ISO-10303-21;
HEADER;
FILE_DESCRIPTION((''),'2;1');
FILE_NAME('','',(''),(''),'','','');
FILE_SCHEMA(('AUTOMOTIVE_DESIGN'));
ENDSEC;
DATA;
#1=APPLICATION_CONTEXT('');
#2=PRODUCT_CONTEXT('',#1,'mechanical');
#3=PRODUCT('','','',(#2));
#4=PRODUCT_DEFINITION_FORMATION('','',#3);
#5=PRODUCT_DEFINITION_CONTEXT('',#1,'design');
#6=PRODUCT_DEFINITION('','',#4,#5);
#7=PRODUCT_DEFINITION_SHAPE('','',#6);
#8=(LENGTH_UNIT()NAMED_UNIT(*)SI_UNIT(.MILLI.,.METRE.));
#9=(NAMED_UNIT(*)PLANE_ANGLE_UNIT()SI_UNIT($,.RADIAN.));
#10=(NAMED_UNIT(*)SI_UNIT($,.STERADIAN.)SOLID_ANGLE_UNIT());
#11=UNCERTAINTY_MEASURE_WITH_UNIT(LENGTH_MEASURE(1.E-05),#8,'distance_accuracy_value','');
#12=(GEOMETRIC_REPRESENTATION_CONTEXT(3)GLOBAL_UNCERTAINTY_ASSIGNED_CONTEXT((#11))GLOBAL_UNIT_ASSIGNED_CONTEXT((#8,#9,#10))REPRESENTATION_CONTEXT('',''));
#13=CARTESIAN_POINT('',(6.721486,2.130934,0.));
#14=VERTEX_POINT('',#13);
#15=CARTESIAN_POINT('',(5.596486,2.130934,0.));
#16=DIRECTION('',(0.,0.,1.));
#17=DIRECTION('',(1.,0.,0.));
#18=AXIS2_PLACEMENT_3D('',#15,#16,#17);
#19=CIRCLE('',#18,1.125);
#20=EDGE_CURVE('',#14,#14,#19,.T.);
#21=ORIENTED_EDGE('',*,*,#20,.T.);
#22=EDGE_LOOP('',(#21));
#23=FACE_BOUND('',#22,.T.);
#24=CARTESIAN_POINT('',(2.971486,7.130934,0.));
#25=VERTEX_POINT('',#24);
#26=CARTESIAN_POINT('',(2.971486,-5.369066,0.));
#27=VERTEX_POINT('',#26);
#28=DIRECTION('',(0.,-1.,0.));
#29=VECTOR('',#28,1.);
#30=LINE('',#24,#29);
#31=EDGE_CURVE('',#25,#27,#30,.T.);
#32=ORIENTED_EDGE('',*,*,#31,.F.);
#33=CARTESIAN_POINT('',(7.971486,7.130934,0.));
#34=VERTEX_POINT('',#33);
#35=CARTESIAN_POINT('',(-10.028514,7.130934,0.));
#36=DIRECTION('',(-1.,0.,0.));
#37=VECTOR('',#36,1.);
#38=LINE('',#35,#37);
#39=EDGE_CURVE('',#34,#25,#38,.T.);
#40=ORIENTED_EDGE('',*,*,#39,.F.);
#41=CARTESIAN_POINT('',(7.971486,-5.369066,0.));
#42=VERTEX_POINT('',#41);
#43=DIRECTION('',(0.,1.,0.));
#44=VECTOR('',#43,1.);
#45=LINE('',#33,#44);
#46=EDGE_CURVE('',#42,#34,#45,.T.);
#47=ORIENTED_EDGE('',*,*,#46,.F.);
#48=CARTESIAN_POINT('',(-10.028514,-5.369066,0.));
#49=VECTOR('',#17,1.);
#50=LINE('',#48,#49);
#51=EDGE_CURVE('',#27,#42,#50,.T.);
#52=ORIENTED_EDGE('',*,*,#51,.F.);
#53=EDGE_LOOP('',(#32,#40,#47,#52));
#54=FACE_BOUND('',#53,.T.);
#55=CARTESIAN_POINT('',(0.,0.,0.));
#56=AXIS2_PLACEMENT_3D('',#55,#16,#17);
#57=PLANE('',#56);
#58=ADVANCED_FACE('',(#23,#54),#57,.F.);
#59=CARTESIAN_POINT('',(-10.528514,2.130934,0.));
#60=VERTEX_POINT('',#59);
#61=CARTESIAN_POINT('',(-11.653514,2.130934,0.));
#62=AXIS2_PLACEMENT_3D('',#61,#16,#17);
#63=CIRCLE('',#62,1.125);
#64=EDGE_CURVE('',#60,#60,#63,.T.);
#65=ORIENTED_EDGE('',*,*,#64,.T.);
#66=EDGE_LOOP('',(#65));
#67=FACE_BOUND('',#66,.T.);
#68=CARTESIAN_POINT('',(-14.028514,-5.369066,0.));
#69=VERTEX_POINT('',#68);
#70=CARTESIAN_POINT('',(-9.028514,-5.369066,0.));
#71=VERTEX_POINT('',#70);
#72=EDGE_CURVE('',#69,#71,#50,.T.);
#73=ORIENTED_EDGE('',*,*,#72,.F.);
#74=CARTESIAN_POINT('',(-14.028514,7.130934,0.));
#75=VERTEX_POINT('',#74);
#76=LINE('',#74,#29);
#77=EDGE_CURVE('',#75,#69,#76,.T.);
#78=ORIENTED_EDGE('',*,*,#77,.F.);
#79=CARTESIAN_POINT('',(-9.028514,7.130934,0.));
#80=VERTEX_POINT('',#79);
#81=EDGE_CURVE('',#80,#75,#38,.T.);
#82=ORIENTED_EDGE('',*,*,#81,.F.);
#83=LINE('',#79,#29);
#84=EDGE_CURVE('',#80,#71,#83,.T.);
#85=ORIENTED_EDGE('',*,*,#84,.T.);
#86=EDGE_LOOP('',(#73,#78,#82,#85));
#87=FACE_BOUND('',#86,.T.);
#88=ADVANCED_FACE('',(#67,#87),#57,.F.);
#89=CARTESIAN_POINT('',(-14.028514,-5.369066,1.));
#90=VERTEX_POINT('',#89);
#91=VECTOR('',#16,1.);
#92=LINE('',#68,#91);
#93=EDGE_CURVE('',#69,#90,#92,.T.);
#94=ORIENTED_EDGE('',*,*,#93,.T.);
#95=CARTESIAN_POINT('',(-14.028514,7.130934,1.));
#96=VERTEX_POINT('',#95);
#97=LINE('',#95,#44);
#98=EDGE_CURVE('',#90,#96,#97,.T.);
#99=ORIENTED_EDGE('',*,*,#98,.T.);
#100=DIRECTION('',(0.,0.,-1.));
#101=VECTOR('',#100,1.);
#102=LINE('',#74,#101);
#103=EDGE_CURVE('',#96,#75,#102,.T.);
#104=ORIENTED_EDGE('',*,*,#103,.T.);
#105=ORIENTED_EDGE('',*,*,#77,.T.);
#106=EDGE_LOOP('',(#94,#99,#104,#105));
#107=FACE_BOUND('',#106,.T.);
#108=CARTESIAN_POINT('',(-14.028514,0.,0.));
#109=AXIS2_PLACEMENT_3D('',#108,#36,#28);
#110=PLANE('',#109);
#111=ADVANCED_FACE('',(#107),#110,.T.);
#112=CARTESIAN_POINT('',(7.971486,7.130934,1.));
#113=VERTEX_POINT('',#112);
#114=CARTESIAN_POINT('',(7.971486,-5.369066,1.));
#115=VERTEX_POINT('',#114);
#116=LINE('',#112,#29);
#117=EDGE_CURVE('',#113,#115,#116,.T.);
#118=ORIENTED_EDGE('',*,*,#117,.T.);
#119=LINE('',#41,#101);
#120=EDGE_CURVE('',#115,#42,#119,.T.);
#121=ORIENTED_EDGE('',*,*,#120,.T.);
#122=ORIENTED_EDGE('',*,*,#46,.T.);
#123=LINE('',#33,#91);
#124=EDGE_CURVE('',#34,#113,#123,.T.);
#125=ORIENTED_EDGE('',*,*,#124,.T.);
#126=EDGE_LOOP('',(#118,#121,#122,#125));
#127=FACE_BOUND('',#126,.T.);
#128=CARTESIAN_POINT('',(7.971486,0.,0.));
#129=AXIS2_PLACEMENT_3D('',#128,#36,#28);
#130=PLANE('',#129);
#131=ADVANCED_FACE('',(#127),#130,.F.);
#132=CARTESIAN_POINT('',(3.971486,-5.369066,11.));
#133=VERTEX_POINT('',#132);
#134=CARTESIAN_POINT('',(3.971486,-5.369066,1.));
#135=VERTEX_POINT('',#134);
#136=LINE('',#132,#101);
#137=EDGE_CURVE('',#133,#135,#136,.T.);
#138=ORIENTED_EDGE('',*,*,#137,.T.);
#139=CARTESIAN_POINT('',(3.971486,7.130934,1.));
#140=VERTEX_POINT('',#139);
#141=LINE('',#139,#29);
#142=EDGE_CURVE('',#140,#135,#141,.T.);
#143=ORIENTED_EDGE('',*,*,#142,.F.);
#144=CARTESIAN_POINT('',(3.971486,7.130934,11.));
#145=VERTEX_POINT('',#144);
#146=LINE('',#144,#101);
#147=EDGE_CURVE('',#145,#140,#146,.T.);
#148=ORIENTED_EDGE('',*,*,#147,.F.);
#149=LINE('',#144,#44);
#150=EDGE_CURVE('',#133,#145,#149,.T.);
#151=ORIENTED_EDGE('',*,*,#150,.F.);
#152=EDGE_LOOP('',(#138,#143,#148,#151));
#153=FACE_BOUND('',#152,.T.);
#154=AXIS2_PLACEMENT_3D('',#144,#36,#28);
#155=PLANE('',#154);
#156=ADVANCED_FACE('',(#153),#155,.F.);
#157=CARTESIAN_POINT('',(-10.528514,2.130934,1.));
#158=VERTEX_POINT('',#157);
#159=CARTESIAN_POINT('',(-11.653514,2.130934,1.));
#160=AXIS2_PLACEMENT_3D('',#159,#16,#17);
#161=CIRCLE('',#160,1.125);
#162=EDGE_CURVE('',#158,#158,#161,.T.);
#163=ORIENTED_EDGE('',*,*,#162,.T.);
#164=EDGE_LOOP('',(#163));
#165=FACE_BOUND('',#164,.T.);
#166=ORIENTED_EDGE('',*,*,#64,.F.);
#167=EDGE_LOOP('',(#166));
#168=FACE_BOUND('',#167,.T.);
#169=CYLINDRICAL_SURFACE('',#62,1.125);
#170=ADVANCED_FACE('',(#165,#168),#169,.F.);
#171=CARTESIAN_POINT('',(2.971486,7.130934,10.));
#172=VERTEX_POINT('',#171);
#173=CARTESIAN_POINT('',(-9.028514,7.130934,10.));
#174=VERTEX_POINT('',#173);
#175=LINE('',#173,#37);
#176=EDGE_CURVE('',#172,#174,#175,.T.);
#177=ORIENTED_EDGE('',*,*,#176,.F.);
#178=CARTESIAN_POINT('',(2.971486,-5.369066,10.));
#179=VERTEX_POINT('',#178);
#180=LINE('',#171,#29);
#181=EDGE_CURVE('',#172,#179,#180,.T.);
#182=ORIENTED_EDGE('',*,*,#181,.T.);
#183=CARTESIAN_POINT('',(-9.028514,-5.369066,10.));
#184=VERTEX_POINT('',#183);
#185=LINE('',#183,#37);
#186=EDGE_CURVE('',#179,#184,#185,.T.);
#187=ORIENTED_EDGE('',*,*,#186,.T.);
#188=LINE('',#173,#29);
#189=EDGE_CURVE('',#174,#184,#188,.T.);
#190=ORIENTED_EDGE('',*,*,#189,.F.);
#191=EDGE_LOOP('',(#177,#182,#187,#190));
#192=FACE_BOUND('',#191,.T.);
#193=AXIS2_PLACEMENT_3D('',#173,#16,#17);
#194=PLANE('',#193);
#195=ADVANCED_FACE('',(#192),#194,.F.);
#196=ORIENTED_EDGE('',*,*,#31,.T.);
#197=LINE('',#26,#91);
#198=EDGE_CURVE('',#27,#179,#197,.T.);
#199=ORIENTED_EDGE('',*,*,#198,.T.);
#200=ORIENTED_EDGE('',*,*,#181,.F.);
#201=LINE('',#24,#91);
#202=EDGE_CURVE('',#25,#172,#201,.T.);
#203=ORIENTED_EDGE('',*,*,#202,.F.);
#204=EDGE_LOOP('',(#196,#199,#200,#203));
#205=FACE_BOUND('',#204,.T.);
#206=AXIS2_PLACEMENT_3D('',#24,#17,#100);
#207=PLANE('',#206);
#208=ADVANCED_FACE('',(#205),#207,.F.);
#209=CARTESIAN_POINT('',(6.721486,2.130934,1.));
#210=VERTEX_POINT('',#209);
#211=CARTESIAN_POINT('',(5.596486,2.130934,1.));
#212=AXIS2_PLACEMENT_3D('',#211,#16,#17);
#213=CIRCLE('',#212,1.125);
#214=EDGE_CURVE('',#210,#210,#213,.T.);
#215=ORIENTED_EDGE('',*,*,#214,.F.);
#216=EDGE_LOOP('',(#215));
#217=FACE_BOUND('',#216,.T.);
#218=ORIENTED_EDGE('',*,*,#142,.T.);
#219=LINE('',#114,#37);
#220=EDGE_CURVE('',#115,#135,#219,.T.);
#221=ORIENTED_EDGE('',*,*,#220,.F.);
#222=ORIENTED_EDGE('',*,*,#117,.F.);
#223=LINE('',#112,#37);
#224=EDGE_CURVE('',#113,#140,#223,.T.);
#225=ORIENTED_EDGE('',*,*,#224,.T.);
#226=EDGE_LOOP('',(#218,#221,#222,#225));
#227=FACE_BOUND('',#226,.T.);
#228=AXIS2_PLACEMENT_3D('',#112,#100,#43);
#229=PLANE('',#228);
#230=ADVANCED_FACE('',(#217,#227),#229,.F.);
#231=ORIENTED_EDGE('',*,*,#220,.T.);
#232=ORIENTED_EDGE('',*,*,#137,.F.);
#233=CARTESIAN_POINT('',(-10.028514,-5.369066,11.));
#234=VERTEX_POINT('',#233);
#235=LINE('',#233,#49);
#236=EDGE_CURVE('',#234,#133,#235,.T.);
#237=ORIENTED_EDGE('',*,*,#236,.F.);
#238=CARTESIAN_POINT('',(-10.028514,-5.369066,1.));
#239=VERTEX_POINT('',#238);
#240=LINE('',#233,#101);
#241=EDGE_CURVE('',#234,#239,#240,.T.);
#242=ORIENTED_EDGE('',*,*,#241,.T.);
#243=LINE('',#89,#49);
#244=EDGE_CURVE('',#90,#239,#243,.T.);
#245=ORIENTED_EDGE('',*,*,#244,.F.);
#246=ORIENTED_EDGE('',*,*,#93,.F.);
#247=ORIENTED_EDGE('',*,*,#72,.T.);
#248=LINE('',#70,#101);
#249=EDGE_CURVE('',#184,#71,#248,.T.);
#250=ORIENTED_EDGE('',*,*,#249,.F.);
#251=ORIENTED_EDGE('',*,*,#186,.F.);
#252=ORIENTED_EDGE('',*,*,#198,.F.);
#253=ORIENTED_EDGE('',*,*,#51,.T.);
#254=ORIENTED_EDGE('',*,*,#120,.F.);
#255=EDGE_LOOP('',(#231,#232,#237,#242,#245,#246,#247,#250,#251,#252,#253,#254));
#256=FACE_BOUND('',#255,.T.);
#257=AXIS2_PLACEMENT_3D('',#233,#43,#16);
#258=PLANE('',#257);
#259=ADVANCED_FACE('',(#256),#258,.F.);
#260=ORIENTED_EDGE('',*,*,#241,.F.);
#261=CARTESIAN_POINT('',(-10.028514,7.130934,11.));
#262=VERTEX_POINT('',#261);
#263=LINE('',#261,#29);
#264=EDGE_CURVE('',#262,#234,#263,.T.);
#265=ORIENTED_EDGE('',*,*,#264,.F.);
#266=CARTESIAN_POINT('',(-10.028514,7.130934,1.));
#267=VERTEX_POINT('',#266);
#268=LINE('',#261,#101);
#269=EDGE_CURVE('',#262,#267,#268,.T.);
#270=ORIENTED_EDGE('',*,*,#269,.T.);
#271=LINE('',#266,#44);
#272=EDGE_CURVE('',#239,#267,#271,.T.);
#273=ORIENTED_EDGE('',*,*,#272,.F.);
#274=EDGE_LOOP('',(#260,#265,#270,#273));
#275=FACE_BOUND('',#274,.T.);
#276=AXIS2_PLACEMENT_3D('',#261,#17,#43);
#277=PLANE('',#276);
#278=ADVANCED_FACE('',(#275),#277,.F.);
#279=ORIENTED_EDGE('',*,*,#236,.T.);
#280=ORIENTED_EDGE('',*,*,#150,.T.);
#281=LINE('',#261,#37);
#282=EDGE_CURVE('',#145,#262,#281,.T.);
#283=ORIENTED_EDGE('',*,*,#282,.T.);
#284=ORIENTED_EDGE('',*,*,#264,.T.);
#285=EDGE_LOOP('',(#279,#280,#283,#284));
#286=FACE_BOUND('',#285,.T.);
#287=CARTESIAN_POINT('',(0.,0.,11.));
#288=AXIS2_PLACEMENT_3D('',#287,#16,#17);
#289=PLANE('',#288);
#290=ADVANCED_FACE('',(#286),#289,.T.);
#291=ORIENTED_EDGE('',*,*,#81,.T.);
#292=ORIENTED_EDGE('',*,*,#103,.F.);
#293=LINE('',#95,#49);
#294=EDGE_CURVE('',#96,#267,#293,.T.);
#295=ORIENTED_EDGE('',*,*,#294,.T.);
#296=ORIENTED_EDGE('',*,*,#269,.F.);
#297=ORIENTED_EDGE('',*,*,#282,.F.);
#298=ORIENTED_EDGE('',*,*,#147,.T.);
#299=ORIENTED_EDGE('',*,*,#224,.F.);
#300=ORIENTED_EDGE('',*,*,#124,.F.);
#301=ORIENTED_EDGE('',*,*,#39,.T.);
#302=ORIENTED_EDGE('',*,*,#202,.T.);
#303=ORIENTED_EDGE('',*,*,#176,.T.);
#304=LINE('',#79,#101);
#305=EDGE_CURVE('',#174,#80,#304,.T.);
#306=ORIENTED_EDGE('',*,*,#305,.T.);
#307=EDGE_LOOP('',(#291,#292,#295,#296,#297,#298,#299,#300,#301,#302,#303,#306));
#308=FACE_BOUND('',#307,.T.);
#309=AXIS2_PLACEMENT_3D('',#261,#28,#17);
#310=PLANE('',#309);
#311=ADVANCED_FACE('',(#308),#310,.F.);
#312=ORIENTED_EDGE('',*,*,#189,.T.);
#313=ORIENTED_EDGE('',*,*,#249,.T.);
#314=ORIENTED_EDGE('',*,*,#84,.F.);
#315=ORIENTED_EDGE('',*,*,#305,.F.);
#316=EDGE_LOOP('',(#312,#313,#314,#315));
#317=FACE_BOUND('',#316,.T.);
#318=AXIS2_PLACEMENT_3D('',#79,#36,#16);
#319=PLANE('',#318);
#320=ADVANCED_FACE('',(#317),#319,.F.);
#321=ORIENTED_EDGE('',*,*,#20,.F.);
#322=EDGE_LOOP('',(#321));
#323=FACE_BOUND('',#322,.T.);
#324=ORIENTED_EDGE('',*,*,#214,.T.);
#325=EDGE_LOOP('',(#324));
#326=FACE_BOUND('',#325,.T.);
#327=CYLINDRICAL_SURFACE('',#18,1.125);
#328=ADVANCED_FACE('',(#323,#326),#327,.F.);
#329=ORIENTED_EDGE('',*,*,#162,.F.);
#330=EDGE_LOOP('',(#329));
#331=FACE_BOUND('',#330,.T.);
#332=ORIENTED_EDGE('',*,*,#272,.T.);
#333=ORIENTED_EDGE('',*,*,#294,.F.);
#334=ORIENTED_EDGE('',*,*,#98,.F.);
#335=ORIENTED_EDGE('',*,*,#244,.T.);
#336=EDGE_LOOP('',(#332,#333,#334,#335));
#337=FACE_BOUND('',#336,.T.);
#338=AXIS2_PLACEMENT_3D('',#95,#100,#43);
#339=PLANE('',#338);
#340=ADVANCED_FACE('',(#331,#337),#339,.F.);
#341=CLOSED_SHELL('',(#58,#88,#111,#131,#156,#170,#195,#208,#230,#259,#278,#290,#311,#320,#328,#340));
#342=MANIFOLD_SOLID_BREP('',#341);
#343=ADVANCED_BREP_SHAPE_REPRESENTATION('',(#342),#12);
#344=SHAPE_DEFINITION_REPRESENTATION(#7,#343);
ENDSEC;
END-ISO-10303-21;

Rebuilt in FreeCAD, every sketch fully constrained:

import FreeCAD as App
import Part
import Sketcher
from FreeCAD import Vector
Q = App.Units.Quantity

doc = App.newDocument("Part")
body = doc.addObject("PartDesign::Body", "Body")

sketch1 = body.newObject("Sketcher::SketchObject", "Sketch")
sketch1.AttachmentSupport = (doc.getObject("XY_Plane"), [""])
sketch1.MapMode = "FlatFace"
sketch1.addGeometry(Part.LineSegment(Vector(-10, 7, 0), Vector(-10, -5, 0)), False)
sketch1.addGeometry(Part.LineSegment(Vector(-10, -5, 0), Vector(4, -5, 0)), False)
sketch1.addGeometry(Part.LineSegment(Vector(4, -5, 0), Vector(4, 7, 0)), False)
sketch1.addGeometry(Part.LineSegment(Vector(4, 7, 0), Vector(-10, 7, 0)), False)
sketch1.addConstraint(Sketcher.Constraint("Coincident", 0, 2, 1, 1))
sketch1.addConstraint(Sketcher.Constraint("Coincident", 1, 2, 2, 1))
sketch1.addConstraint(Sketcher.Constraint("Coincident", 2, 2, 3, 1))
sketch1.addConstraint(Sketcher.Constraint("Coincident", 3, 2, 0, 1))
sketch1.addConstraint(Sketcher.Constraint("Vertical", 0))
sketch1.addConstraint(Sketcher.Constraint("Horizontal", 1))
sketch1.addConstraint(Sketcher.Constraint("Vertical", 2))
sketch1.addConstraint(Sketcher.Constraint("Horizontal", 3))
sketch1.addConstraint(Sketcher.Constraint("DistanceX", 1, 1, 1, 2, Q("14 mm")))
sketch1.addConstraint(Sketcher.Constraint("DistanceY", 0, 2, 0, 1, Q("12.5 mm")))
sketch1.addConstraint(Sketcher.Constraint("DistanceX", 0, 2, -1, 1, Q("10.028514 mm")))
sketch1.addConstraint(Sketcher.Constraint("DistanceY", 0, 2, -1, 1, Q("5.369066 mm")))
pad1 = body.newObject("PartDesign::Pad", "Pad")
pad1.Profile = sketch1
pad1.Length = 11

sketch2 = body.newObject("Sketcher::SketchObject", "Sketch001")
sketch2.AttachmentSupport = (doc.getObject("XZ_Plane"), [""])
sketch2.MapMode = "FlatFace"
sketch2.AttachmentOffset = App.Placement(Vector(0, 0, 5.369066), App.Rotation())
sketch2.addGeometry(Part.LineSegment(Vector(3, 0, 0), Vector(3, 10, 0)), False)
sketch2.addGeometry(Part.LineSegment(Vector(3, 10, 0), Vector(-9, 10, 0)), False)
sketch2.addGeometry(Part.LineSegment(Vector(-9, 10, 0), Vector(-9, 0, 0)), False)
sketch2.addGeometry(Part.LineSegment(Vector(-9, 0, 0), Vector(3, 0, 0)), False)
sketch2.addConstraint(Sketcher.Constraint("Coincident", 0, 2, 1, 1))
sketch2.addConstraint(Sketcher.Constraint("Coincident", 1, 2, 2, 1))
sketch2.addConstraint(Sketcher.Constraint("Coincident", 2, 2, 3, 1))
sketch2.addConstraint(Sketcher.Constraint("Coincident", 3, 2, 0, 1))
sketch2.addConstraint(Sketcher.Constraint("Vertical", 0))
sketch2.addConstraint(Sketcher.Constraint("Horizontal", 1))
sketch2.addConstraint(Sketcher.Constraint("Vertical", 2))
sketch2.addConstraint(Sketcher.Constraint("Horizontal", 3))
sketch2.addConstraint(Sketcher.Constraint("PointOnObject", 2, 2, -1))
sketch2.addConstraint(Sketcher.Constraint("DistanceX", 1, 2, 1, 1, Q("12 mm")))
sketch2.addConstraint(Sketcher.Constraint("DistanceY", 0, 1, 0, 2, Q("10 mm")))
sketch2.addConstraint(Sketcher.Constraint("DistanceX", -1, 1, 0, 2, Q("2.971486 mm")))
pocket1 = body.newObject("PartDesign::Pocket", "Pocket")
pocket1.Profile = sketch2
pocket1.Length = 12.5

sketch3 = body.newObject("Sketcher::SketchObject", "Sketch002")
sketch3.AttachmentSupport = (doc.getObject("YZ_Plane"), [""])
sketch3.MapMode = "FlatFace"
sketch3.AttachmentOffset = App.Placement(Vector(0, 0, 3.971486), App.Rotation())
sketch3.addGeometry(Part.LineSegment(Vector(7.1, 1, 0), Vector(-5.4, 1, 0)), False)
sketch3.addGeometry(Part.LineSegment(Vector(-5.4, 1, 0), Vector(-5.4, 0, 0)), False)
sketch3.addGeometry(Part.LineSegment(Vector(-5.4, 0, 0), Vector(7.1, 0, 0)), False)
sketch3.addGeometry(Part.LineSegment(Vector(7.1, 0, 0), Vector(7.1, 1, 0)), False)
sketch3.addConstraint(Sketcher.Constraint("Coincident", 0, 2, 1, 1))
sketch3.addConstraint(Sketcher.Constraint("Coincident", 1, 2, 2, 1))
sketch3.addConstraint(Sketcher.Constraint("Coincident", 2, 2, 3, 1))
sketch3.addConstraint(Sketcher.Constraint("Coincident", 3, 2, 0, 1))
sketch3.addConstraint(Sketcher.Constraint("Horizontal", 0))
sketch3.addConstraint(Sketcher.Constraint("Vertical", 1))
sketch3.addConstraint(Sketcher.Constraint("Horizontal", 2))
sketch3.addConstraint(Sketcher.Constraint("Vertical", 3))
sketch3.addConstraint(Sketcher.Constraint("PointOnObject", 1, 2, -1))
sketch3.addConstraint(Sketcher.Constraint("DistanceY", 1, 2, 1, 1, Q("1 mm")))
sketch3.addConstraint(Sketcher.Constraint("DistanceX", 0, 2, 0, 1, Q("12.5 mm")))
sketch3.addConstraint(Sketcher.Constraint("DistanceX", 0, 2, -1, 1, Q("5.369066 mm")))
pad2 = body.newObject("PartDesign::Pad", "Pad001")
pad2.Profile = sketch3
pad2.Length = 4

sketch4 = body.newObject("Sketcher::SketchObject", "Sketch003")
sketch4.AttachmentSupport = (doc.getObject("YZ_Plane"), [""])
sketch4.MapMode = "FlatFace"
sketch4.AttachmentOffset = App.Placement(Vector(0, 0, -10.028514), App.Rotation())
sketch4.addGeometry(Part.LineSegment(Vector(7.1, 0, 0), Vector(-5.4, 0, 0)), False)
sketch4.addGeometry(Part.LineSegment(Vector(-5.4, 0, 0), Vector(-5.4, 1, 0)), False)
sketch4.addGeometry(Part.LineSegment(Vector(-5.4, 1, 0), Vector(7.1, 1, 0)), False)
sketch4.addGeometry(Part.LineSegment(Vector(7.1, 1, 0), Vector(7.1, 0, 0)), False)
sketch4.addConstraint(Sketcher.Constraint("Coincident", 0, 2, 1, 1))
sketch4.addConstraint(Sketcher.Constraint("Coincident", 1, 2, 2, 1))
sketch4.addConstraint(Sketcher.Constraint("Coincident", 2, 2, 3, 1))
sketch4.addConstraint(Sketcher.Constraint("Coincident", 3, 2, 0, 1))
sketch4.addConstraint(Sketcher.Constraint("Horizontal", 0))
sketch4.addConstraint(Sketcher.Constraint("Vertical", 1))
sketch4.addConstraint(Sketcher.Constraint("Horizontal", 2))
sketch4.addConstraint(Sketcher.Constraint("Vertical", 3))
sketch4.addConstraint(Sketcher.Constraint("PointOnObject", 0, 2, -1))
sketch4.addConstraint(Sketcher.Constraint("DistanceY", 1, 1, 1, 2, Q("1 mm")))
sketch4.addConstraint(Sketcher.Constraint("DistanceX", 0, 2, 0, 1, Q("12.5 mm")))
sketch4.addConstraint(Sketcher.Constraint("DistanceX", 0, 2, -1, 1, Q("5.369066 mm")))
pad3 = body.newObject("PartDesign::Pad", "Pad002")
pad3.Profile = sketch4
pad3.Length = 4
pad3.Reversed = True

sketch5 = body.newObject("Sketcher::SketchObject", "Sketch004")
sketch5.AttachmentSupport = (doc.getObject("XY_Plane"), [""])
sketch5.MapMode = "FlatFace"
sketch5.AttachmentOffset = App.Placement(Vector(0, 0, 1), App.Rotation())
sketch5.addGeometry(Part.Circle(Vector(-11.7, 2.1, 0), Vector(0, 0, 1), 1.1), False)
sketch5.addGeometry(Part.Circle(Vector(5.6, 2.1, 0), Vector(0, 0, 1), 1.1), False)
sketch5.addConstraint(Sketcher.Constraint("Equal", 0, 1))
sketch5.addConstraint(Sketcher.Constraint("Horizontal", 0, 3, 1, 3))
sketch5.addConstraint(Sketcher.Constraint("Diameter", 0, Q("2.25 mm")))
sketch5.addConstraint(Sketcher.Constraint("DistanceX", 0, 3, 1, 3, Q("17.25 mm")))
sketch5.addConstraint(Sketcher.Constraint("DistanceX", 0, 3, -1, 1, Q("11.653514 mm")))
sketch5.addConstraint(Sketcher.Constraint("DistanceY", -1, 1, 0, 3, Q("2.130934 mm")))
pocket2 = body.newObject("PartDesign::Pocket", "Pocket001")
pocket2.Profile = sketch5
pocket2.Length = 1

doc.recompute()
